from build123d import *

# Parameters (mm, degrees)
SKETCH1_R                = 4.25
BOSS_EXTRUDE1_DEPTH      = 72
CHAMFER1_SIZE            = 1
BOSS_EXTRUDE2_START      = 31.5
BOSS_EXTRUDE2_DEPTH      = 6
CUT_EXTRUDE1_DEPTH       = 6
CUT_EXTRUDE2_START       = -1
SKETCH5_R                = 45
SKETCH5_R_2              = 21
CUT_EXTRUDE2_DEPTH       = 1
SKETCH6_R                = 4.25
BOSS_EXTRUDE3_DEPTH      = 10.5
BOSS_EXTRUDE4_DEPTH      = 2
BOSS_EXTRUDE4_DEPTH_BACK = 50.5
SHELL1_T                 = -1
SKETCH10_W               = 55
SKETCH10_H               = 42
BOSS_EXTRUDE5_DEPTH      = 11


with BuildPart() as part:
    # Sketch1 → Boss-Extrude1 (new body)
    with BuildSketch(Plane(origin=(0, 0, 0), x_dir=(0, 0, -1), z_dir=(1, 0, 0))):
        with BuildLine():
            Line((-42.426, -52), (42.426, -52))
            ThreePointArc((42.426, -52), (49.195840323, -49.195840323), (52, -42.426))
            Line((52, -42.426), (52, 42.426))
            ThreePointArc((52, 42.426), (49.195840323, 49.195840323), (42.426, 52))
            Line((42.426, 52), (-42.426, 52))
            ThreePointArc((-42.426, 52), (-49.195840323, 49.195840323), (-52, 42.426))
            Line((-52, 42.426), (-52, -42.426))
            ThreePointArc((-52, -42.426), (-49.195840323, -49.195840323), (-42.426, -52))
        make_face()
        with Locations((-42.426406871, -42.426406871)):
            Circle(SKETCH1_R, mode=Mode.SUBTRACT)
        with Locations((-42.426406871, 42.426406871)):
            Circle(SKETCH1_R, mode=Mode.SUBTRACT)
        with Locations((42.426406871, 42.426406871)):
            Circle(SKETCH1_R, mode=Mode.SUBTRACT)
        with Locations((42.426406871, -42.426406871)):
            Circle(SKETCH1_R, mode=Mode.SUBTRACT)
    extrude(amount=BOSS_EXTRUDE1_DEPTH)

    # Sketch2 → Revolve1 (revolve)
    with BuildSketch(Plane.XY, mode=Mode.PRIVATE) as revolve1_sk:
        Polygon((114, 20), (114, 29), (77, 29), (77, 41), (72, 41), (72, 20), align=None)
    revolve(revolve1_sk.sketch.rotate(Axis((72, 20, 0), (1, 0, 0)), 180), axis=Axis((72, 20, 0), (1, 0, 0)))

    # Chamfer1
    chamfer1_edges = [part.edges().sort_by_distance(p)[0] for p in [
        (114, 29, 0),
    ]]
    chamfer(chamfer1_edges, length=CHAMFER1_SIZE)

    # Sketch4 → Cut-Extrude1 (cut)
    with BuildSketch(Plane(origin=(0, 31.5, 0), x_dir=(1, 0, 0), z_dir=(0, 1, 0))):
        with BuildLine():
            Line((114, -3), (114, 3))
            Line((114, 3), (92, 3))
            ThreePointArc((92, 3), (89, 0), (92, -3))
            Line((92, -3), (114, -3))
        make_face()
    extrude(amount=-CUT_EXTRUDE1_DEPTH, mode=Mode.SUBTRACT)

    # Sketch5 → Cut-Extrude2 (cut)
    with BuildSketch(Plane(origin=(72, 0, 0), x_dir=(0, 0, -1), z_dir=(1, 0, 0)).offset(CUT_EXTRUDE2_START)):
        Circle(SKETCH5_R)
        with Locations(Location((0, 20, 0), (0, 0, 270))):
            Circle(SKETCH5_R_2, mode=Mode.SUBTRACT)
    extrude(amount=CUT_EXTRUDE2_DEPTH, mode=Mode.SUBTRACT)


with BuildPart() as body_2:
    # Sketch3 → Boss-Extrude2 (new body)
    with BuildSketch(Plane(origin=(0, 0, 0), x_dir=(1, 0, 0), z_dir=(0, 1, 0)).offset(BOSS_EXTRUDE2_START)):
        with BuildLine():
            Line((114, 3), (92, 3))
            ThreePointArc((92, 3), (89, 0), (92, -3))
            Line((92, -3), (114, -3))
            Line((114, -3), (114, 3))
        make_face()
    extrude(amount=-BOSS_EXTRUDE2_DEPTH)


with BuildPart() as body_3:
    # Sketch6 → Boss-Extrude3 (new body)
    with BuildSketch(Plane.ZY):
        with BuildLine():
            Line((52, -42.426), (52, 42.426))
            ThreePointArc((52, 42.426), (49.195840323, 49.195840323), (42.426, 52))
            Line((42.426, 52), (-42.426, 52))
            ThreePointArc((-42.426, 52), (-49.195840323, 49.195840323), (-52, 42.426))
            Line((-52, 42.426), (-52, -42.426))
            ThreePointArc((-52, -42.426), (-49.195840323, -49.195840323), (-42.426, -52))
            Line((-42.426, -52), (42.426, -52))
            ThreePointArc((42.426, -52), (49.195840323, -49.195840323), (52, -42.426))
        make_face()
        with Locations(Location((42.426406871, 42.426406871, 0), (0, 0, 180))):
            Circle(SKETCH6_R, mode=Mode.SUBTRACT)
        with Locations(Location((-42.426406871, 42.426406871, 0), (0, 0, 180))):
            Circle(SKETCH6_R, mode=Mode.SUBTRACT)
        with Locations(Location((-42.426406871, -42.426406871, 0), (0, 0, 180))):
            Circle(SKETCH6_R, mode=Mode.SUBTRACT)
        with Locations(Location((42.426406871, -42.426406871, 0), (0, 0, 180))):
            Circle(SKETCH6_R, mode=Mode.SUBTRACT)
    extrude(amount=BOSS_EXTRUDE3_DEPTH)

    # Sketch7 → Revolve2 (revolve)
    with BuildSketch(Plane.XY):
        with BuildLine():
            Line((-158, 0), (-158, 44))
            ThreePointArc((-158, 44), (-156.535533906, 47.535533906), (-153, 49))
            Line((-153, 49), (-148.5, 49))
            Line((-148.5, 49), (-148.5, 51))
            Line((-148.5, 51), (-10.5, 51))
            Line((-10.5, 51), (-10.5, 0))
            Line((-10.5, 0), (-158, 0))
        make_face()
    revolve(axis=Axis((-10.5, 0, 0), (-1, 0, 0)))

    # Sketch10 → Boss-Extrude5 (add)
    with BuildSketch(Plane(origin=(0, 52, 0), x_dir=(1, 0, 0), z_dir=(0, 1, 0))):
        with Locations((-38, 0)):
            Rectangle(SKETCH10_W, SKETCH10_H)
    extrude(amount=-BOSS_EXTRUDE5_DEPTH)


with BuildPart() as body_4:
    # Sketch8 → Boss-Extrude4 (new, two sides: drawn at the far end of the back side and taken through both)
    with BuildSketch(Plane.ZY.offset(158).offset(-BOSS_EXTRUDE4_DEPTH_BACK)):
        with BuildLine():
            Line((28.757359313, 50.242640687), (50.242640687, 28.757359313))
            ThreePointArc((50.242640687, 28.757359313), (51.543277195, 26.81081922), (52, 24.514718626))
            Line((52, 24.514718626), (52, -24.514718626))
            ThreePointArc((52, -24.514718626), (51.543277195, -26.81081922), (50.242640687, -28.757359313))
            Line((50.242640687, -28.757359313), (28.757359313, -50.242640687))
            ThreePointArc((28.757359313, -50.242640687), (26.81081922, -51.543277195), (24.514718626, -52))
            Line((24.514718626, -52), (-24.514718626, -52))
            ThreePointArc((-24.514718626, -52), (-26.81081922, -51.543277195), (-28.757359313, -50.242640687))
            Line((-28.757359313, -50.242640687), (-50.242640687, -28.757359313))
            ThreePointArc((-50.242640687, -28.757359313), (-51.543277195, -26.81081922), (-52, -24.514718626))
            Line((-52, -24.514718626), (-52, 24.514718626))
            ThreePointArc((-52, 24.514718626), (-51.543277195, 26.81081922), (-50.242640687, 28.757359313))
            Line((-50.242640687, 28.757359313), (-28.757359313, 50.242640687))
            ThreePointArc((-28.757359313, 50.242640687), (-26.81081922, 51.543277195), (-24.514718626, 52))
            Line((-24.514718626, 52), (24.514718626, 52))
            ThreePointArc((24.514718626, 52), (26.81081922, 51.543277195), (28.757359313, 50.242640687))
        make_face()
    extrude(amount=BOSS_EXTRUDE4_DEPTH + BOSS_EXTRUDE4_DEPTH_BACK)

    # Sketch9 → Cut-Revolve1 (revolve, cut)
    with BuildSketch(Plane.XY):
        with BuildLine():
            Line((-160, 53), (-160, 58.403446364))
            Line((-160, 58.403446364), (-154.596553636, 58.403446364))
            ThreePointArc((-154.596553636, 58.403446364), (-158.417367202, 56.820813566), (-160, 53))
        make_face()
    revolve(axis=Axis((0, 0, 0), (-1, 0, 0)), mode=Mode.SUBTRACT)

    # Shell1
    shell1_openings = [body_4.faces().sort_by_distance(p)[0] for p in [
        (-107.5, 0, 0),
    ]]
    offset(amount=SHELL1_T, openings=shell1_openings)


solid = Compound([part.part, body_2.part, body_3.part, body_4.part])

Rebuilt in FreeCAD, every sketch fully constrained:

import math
import FreeCAD as App
import Part
import Sketcher
from FreeCAD import Vector


def edges_at(feature, points):
    """Names of the edges that pass closest to the given points."""
    edges = feature.Shape.Edges
    near = lambda p: min(range(len(edges)), key=lambda i: edges[i].distToShape(Part.Vertex(*p))[0])
    return sorted({f"Edge{near(p) + 1}" for p in points})


def faces_at(feature, points):
    """Names of the faces that lie closest to the given points."""
    faces = feature.Shape.Faces
    near = lambda p: min(range(len(faces)), key=lambda i: faces[i].distToShape(Part.Vertex(*p))[0])
    return sorted({f"Face{near(p) + 1}" for p in points})

doc = App.newDocument("Part")
body = doc.addObject("PartDesign::Body", "Body")

sketch1 = doc.addObject("Sketcher::SketchObject", "Sketch")
body.addObject(sketch1)
sketch1.AttachmentSupport = (doc.YZ_Plane, [""])
sketch1.MapMode = "FlatFace"
sketch1.addGeometry([
    Part.LineSegment(Vector(-52, 42.426, 0), Vector(-52, -42.426, 0)),
    Part.ArcOfCircle(Part.Circle(Vector(-42.426, -42.426, 0), Vector(0, 0, 1), 9.574), math.radians(180), math.radians(270)),
    Part.LineSegment(Vector(-42.426, -52, 0), Vector(42.426, -52, 0)),
    Part.ArcOfCircle(Part.Circle(Vector(42.426, -42.426, 0), Vector(0, 0, 1), 9.574), math.radians(-90), math.radians(0)),
    Part.LineSegment(Vector(52, -42.426, 0), Vector(52, 42.426, 0)),
    Part.ArcOfCircle(Part.Circle(Vector(42.426, 42.426, 0), Vector(0, 0, 1), 9.574), math.radians(0), math.radians(90)),
    Part.LineSegment(Vector(42.426, 52, 0), Vector(-42.426, 52, 0)),
    Part.ArcOfCircle(Part.Circle(Vector(-42.426, 42.426, 0), Vector(0, 0, 1), 9.574), math.radians(90), math.radians(180)),
    Part.Circle(Vector(-42.426407, 42.426407, 0), Vector(0, 0, 1), 4.25),
    Part.Circle(Vector(-42.426407, -42.426407, 0), Vector(0, 0, 1), 4.25),
    Part.Circle(Vector(42.426407, 42.426407, 0), Vector(0, 0, 1), 4.25),
    Part.Circle(Vector(42.426407, -42.426407, 0), Vector(0, 0, 1), 4.25),
], False)
sketch1.addConstraint([
    Sketcher.Constraint("Tangent", 0, 2, 1, 1),
    Sketcher.Constraint("Tangent", 1, 2, 2, 1),
    Sketcher.Constraint("Tangent", 2, 2, 3, 1),
    Sketcher.Constraint("Tangent", 3, 2, 4, 1),
    Sketcher.Constraint("Tangent", 4, 2, 5, 1),
    Sketcher.Constraint("Tangent", 5, 2, 6, 1),
    Sketcher.Constraint("Tangent", 6, 2, 7, 1),
    Sketcher.Constraint("Tangent", 7, 2, 0, 1),
    Sketcher.Constraint("Vertical", 0),
    Sketcher.Constraint("Horizontal", 2),
    Sketcher.Constraint("Vertical", 4),
    Sketcher.Constraint("Horizontal", 6),
    Sketcher.Constraint("Equal", 1, 3),
    Sketcher.Constraint("Equal", 3, 5),
    Sketcher.Constraint("Equal", 5, 7),
    Sketcher.Constraint("Equal", 8, 9),
    Sketcher.Constraint("Equal", 9, 10),
    Sketcher.Constraint("Equal", 10, 11),
    Sketcher.Constraint("Symmetric", 1, 3, 5, 3, -1, 1),
    Sketcher.Constraint("Symmetric", 9, 3, 10, 3, -1, 1),
    Sketcher.Constraint("Symmetric", 8, 3, 11, 3, -1, 1),
    Sketcher.Constraint("Symmetric", 8, 3, 10, 3, -2),
    Sketcher.Constraint("Equal", 6, 0),
    Sketcher.Constraint("Diameter", 8, 8.5),
    Sketcher.Constraint("DistanceX", 0, 2, -1, 1, 52.0),
    Sketcher.Constraint("Radius", 1, 9.574),
    Sketcher.Constraint("DistanceX", 8, 3, -1, 1, 42.426407),
    Sketcher.Constraint("DistanceY", -1, 1, 8, 3, 42.426407),
])
pad1 = doc.addObject("PartDesign::Pad", "Pad")
body.addObject(pad1)
pad1.Profile = sketch1
pad1.Length = 72

sketch2 = doc.addObject("Sketcher::SketchObject", "Sketch001")
body.addObject(sketch2)
sketch2.AttachmentSupport = (doc.XY_Plane, [""])
sketch2.MapMode = "FlatFace"
sketch2.addGeometry([
    Part.LineSegment(Vector(114, 20, 0), Vector(114, 29, 0)),
    Part.LineSegment(Vector(114, 29, 0), Vector(77, 29, 0)),
    Part.LineSegment(Vector(77, 29, 0), Vector(77, 41, 0)),
    Part.LineSegment(Vector(77, 41, 0), Vector(72, 41, 0)),
    Part.LineSegment(Vector(72, 41, 0), Vector(72, 20, 0)),
    Part.LineSegment(Vector(72, 20, 0), Vector(114, 20, 0)),
], False)
sketch2.addGeometry(Part.LineSegment(Vector(72, 20, 0), Vector(114, 20, 0)), True)
sketch2.addConstraint([
    Sketcher.Constraint("Coincident", 0, 2, 1, 1),
    Sketcher.Constraint("Coincident", 1, 2, 2, 1),
    Sketcher.Constraint("Coincident", 2, 2, 3, 1),
    Sketcher.Constraint("Coincident", 3, 2, 4, 1),
    Sketcher.Constraint("Coincident", 4, 2, 5, 1),
    Sketcher.Constraint("Coincident", 5, 2, 0, 1),
    Sketcher.Constraint("Vertical", 0),
    Sketcher.Constraint("Horizontal", 1),
    Sketcher.Constraint("Vertical", 2),
    Sketcher.Constraint("Horizontal", 3),
    Sketcher.Constraint("Vertical", 4),
    Sketcher.Constraint("Horizontal", 5),
    Sketcher.Constraint("Horizontal", 6),
    Sketcher.Constraint("Coincident", 6, 1, 4, 2),
    Sketcher.Constraint("Vertical", 0, 2, 6, 2),
    Sketcher.Constraint("DistanceX", 1, 2, 1, 1, 37.0),
    Sketcher.Constraint("DistanceX", 3, 2, 3, 1, 5.0),
    Sketcher.Constraint("DistanceY", 0, 1, 0, 2, 9.0),
    Sketcher.Constraint("DistanceY", 2, 1, 2, 2, 12.0),
    Sketcher.Constraint("DistanceX", -1, 1, 0, 2, 114.0),
    Sketcher.Constraint("DistanceY", -1, 1, 0, 2, 29.0),
])
revolution = doc.addObject("PartDesign::Revolution", "Revolution")
body.addObject(revolution)
revolution.Profile = sketch2
revolution.ReferenceAxis = (sketch2, ["Axis0"])
revolution.Angle = 360
doc.recompute()

chamfer = doc.addObject("PartDesign::Chamfer", "Chamfer")
body.addObject(chamfer)
chamfer.Base = (revolution, edges_at(revolution, [(114, 29, 0)]))
chamfer.Size = 1

sketch3 = doc.addObject("Sketcher::SketchObject", "Sketch002")
body.addObject(sketch3)
sketch3.AttachmentSupport = (doc.XZ_Plane, [""])
sketch3.MapMode = "FlatFace"
sketch3.AttachmentOffset = App.Placement(Vector(0, 0, -31.5), App.Rotation())
sketch3.addGeometry([
    Part.LineSegment(Vector(114, 3, 0), Vector(114, -3, 0)),
    Part.LineSegment(Vector(114, -3, 0), Vector(92, -3, 0)),
    Part.ArcOfCircle(Part.Circle(Vector(92, 0, 0), Vector(0, 0, 1), 3), math.radians(90), math.radians(270)),
    Part.LineSegment(Vector(92, 3, 0), Vector(114, 3, 0)),
], False)
sketch3.addConstraint([
    Sketcher.Constraint("Coincident", 0, 2, 1, 1),
    Sketcher.Constraint("Tangent", 1, 2, 2, 2),
    Sketcher.Constraint("Tangent", 2, 1, 3, 1),
    Sketcher.Constraint("Coincident", 3, 2, 0, 1),
    Sketcher.Constraint("Vertical", 0),
    Sketcher.Constraint("Horizontal", 1),
    Sketcher.Constraint("Horizontal", 3),
    Sketcher.Constraint("PointOnObject", 2, 3, -1),
    Sketcher.Constraint("Radius", 2, 3.0),
    Sketcher.Constraint("DistanceX", 1, 2, 1, 1, 22.0),
    Sketcher.Constraint("DistanceX", -1, 1, 2, 3, 92.0),
])
pocket1 = doc.addObject("PartDesign::Pocket", "Pocket")
body.addObject(pocket1)
pocket1.Profile = sketch3
pocket1.Length = 6
pocket1.Reversed = True

sketch4 = doc.addObject("Sketcher::SketchObject", "Sketch003")
body.addObject(sketch4)
sketch4.AttachmentSupport = (doc.YZ_Plane, [""])
sketch4.MapMode = "FlatFace"
sketch4.AttachmentOffset = App.Placement(Vector(0, 0, 71), App.Rotation())
sketch4.addGeometry([
    Part.Circle(Vector(0, 0, 0), Vector(0, 0, 1), 45),
    Part.Circle(Vector(20, 0, 0), Vector(0, 0, 1), 21),
], False)
sketch4.addConstraint([
    Sketcher.Constraint("Coincident", 0, 3, -1, 1),
    Sketcher.Constraint("PointOnObject", 1, 3, -1),
    Sketcher.Constraint("Diameter", 0, 90.0),
    Sketcher.Constraint("Diameter", 1, 42.0),
    Sketcher.Constraint("DistanceX", -1, 1, 1, 3, 20.0),
])
pocket2 = doc.addObject("PartDesign::Pocket", "Pocket001")
body.addObject(pocket2)
pocket2.Profile = sketch4
pocket2.Length = 1
pocket2.Reversed = True
body2 = doc.addObject("PartDesign::Body", "Body001")

sketch5 = doc.addObject("Sketcher::SketchObject", "Sketch004")
body2.addObject(sketch5)
sketch5.AttachmentSupport = (doc.getObject("XZ_Plane001"), [""])
sketch5.MapMode = "FlatFace"
sketch5.AttachmentOffset = App.Placement(Vector(0, 0, -31.5), App.Rotation())
sketch5.addGeometry([
    Part.LineSegment(Vector(114, -3, 0), Vector(92, -3, 0)),
    Part.ArcOfCircle(Part.Circle(Vector(92, 0, 0), Vector(0, 0, 1), 3), math.radians(90), math.radians(270)),
    Part.LineSegment(Vector(92, 3, 0), Vector(114, 3, 0)),
    Part.LineSegment(Vector(114, 3, 0), Vector(114, -3, 0)),
], False)
sketch5.addConstraint([
    Sketcher.Constraint("Tangent", 0, 2, 1, 2),
    Sketcher.Constraint("Tangent", 1, 1, 2, 1),
    Sketcher.Constraint("Coincident", 2, 2, 3, 1),
    Sketcher.Constraint("Coincident", 3, 2, 0, 1),
    Sketcher.Constraint("Horizontal", 0),
    Sketcher.Constraint("Horizontal", 2),
    Sketcher.Constraint("Vertical", 3),
    Sketcher.Constraint("PointOnObject", 1, 3, -1),
    Sketcher.Constraint("Radius", 1, 3.0),
    Sketcher.Constraint("DistanceX", 0, 2, 0, 1, 22.0),
    Sketcher.Constraint("DistanceX", -1, 1, 1, 3, 92.0),
])
pad2 = doc.addObject("PartDesign::Pad", "Pad001")
body2.addObject(pad2)
pad2.Profile = sketch5
pad2.Length = 6
body3 = doc.addObject("PartDesign::Body", "Body002")

sketch6 = doc.addObject("Sketcher::SketchObject", "Sketch005")
body3.addObject(sketch6)
sketch6.AttachmentSupport = (doc.getObject("YZ_Plane002"), [""])
sketch6.MapMode = "FlatFace"
sketch6.addGeometry([
    Part.LineSegment(Vector(-42.426, 52, 0), Vector(42.426, 52, 0)),
    Part.ArcOfCircle(Part.Circle(Vector(42.426, 42.426, 0), Vector(0, 0, 1), 9.574), math.radians(0), math.radians(90)),
    Part.LineSegment(Vector(52, 42.426, 0), Vector(52, -42.426, 0)),
    Part.ArcOfCircle(Part.Circle(Vector(42.426, -42.426, 0), Vector(0, 0, 1), 9.574), math.radians(-90), math.radians(0)),
    Part.LineSegment(Vector(42.426, -52, 0), Vector(-42.426, -52, 0)),
    Part.ArcOfCircle(Part.Circle(Vector(-42.426, -42.426, 0), Vector(0, 0, 1), 9.574), math.radians(180), math.radians(270)),
    Part.LineSegment(Vector(-52, -42.426, 0), Vector(-52, 42.426, 0)),
    Part.ArcOfCircle(Part.Circle(Vector(-42.426, 42.426, 0), Vector(0, 0, 1), 9.574), math.radians(90), math.radians(180)),
    Part.Circle(Vector(-42.426407, -42.426407, 0), Vector(0, 0, 1), 4.25),
    Part.Circle(Vector(-42.426407, 42.426407, 0), Vector(0, 0, 1), 4.25),
    Part.Circle(Vector(42.426407, -42.426407, 0), Vector(0, 0, 1), 4.25),
    Part.Circle(Vector(42.426407, 42.426407, 0), Vector(0, 0, 1), 4.25),
], False)
sketch6.addConstraint([
    Sketcher.Constraint("Tangent", 0, 2, 1, 2),
    Sketcher.Constraint("Tangent", 1, 1, 2, 1),
    Sketcher.Constraint("Tangent", 2, 2, 3, 2),
    Sketcher.Constraint("Tangent", 3, 1, 4, 1),
    Sketcher.Constraint("Tangent", 4, 2, 5, 2),
    Sketcher.Constraint("Tangent", 5, 1, 6, 1),
    Sketcher.Constraint("Tangent", 6, 2, 7, 2),
    Sketcher.Constraint("Tangent", 7, 1, 0, 1),
    Sketcher.Constraint("Horizontal", 0),
    Sketcher.Constraint("Vertical", 2),
    Sketcher.Constraint("Horizontal", 4),
    Sketcher.Constraint("Vertical", 6),
    Sketcher.Constraint("Equal", 1, 3),
    Sketcher.Constraint("Equal", 3, 5),
    Sketcher.Constraint("Equal", 5, 7),
    Sketcher.Constraint("Equal", 8, 9),
    Sketcher.Constraint("Equal", 9, 10),
    Sketcher.Constraint("Equal", 10, 11),
    Sketcher.Constraint("Symmetric", 1, 3, 5, 3, -1, 1),
    Sketcher.Constraint("Symmetric", 9, 3, 10, 3, -1, 1),
    Sketcher.Constraint("Symmetric", 8, 3, 11, 3, -1, 1),
    Sketcher.Constraint("Symmetric", 8, 3, 10, 3, -2),
    Sketcher.Constraint("Equal", 4, 2),
    Sketcher.Constraint("Diameter", 8, 8.5),
    Sketcher.Constraint("DistanceY", -1, 1, 0, 2, 52.0),
    Sketcher.Constraint("Radius", 1, 9.574),
    Sketcher.Constraint("DistanceX", 8, 3, -1, 1, 42.426407),
    Sketcher.Constraint("DistanceY", 8, 3, -1, 1, 42.426407),
])
pad3 = doc.addObject("PartDesign::Pad", "Pad002")
body3.addObject(pad3)
pad3.Profile = sketch6
pad3.Length = 10.5
pad3.Reversed = True

sketch7 = doc.addObject("Sketcher::SketchObject", "Sketch006")
body3.addObject(sketch7)
sketch7.AttachmentSupport = (doc.getObject("XY_Plane002"), [""])
sketch7.MapMode = "FlatFace"
sketch7.addGeometry([
    Part.LineSegment(Vector(-158, 44, 0), Vector(-158, 0, 0)),
    Part.LineSegment(Vector(-158, 0, 0), Vector(-10.5, 0, 0)),
    Part.LineSegment(Vector(-10.5, 0, 0), Vector(-10.5, 51, 0)),
    Part.LineSegment(Vector(-10.5, 51, 0), Vector(-148.5, 51, 0)),
    Part.LineSegment(Vector(-148.5, 51, 0), Vector(-148.5, 49, 0)),
    Part.LineSegment(Vector(-148.5, 49, 0), Vector(-153, 49, 0)),
    Part.ArcOfCircle(Part.Circle(Vector(-153, 44, 0), Vector(0, 0, 1), 5), math.radians(90), math.radians(180)),
], False)
sketch7.addConstraint([
    Sketcher.Constraint("Coincident", 0, 2, 1, 1),
    Sketcher.Constraint("Coincident", 1, 2, 2, 1),
    Sketcher.Constraint("Coincident", 2, 2, 3, 1),
    Sketcher.Constraint("Coincident", 3, 2, 4, 1),
    Sketcher.Constraint("Coincident", 4, 2, 5, 1),
    Sketcher.Constraint("Tangent", 5, 2, 6, 1),
    Sketcher.Constraint("Tangent", 6, 2, 0, 1),
    Sketcher.Constraint("Vertical", 0),
    Sketcher.Constraint("Horizontal", 1),
    Sketcher.Constraint("Vertical", 2),
    Sketcher.Constraint("Horizontal", 3),
    Sketcher.Constraint("Vertical", 4),
    Sketcher.Constraint("Horizontal", 5),
    Sketcher.Constraint("PointOnObject", 0, 2, -1),
    Sketcher.Constraint("Radius", 6, 5.0),
    Sketcher.Constraint("DistanceX", 3, 2, 3, 1, 138.0),
    Sketcher.Constraint("DistanceY", 0, 2, 0, 1, 44.0),
    Sketcher.Constraint("DistanceY", 2, 1, 2, 2, 51.0),
    Sketcher.Constraint("DistanceX", 1, 1, 1, 2, 147.5),
    Sketcher.Constraint("DistanceX", 6, 3, -1, 1, 153.0),
])
revolution2 = doc.addObject("PartDesign::Revolution", "Revolution001")
body3.addObject(revolution2)
revolution2.Profile = sketch7
revolution2.ReferenceAxis = (sketch7, ["H_Axis"])
revolution2.Angle = 360

sketch8 = doc.addObject("Sketcher::SketchObject", "Sketch007")
body3.addObject(sketch8)
sketch8.AttachmentSupport = (doc.getObject("XZ_Plane002"), [""])
sketch8.MapMode = "FlatFace"
sketch8.AttachmentOffset = App.Placement(Vector(0, 0, -52), App.Rotation())
sketch8.addGeometry([
    Part.LineSegment(Vector(-65.5, -21, 0), Vector(-65.5, 21, 0)),
    Part.LineSegment(Vector(-65.5, 21, 0), Vector(-10.5, 21, 0)),
    Part.LineSegment(Vector(-10.5, 21, 0), Vector(-10.5, -21, 0)),
    Part.LineSegment(Vector(-10.5, -21, 0), Vector(-65.5, -21, 0)),
], False)
sketch8.addConstraint([
    Sketcher.Constraint("Coincident", 0, 2, 1, 1),
    Sketcher.Constraint("Coincident", 1, 2, 2, 1),
    Sketcher.Constraint("Coincident", 2, 2, 3, 1),
    Sketcher.Constraint("Coincident", 3, 2, 0, 1),
    Sketcher.Constraint("Vertical", 0),
    Sketcher.Constraint("Horizontal", 1),
    Sketcher.Constraint("Vertical", 2),
    Sketcher.Constraint("Horizontal", 3),
    Sketcher.Constraint("DistanceX", 1, 1, 1, 2, 55.0),
    Sketcher.Constraint("DistanceY", 0, 1, 0, 2, 42.0),
    Sketcher.Constraint("DistanceY", -1, 1, 0, 2, 21.0),
    Sketcher.Constraint("DistanceX", 0, 2, -1, 1, 65.5),
])
pad4 = doc.addObject("PartDesign::Pad", "Pad003")
body3.addObject(pad4)
pad4.Profile = sketch8
pad4.Length = 11
body4 = doc.addObject("PartDesign::Body", "Body003")

sketch9 = doc.addObject("Sketcher::SketchObject", "Sketch008")
body4.addObject(sketch9)
sketch9.AttachmentSupport = (doc.getObject("YZ_Plane003"), [""])
sketch9.MapMode = "FlatFace"
sketch9.AttachmentOffset = App.Placement(Vector(0, 0, -158), App.Rotation())
sketch9.addGeometry([
    Part.LineSegment(Vector(28.757359, 50.242641, 0), Vector(50.242641, 28.757359, 0)),
    Part.ArcOfCircle(Part.Circle(Vector(46, 24.514719, 0), Vector(0, 0, 1), 6), math.radians(0), math.radians(45)),
    Part.LineSegment(Vector(52, 24.514719, 0), Vector(52, -24.514719, 0)),
    Part.ArcOfCircle(Part.Circle(Vector(46, -24.514719, 0), Vector(0, 0, 1), 6), math.radians(-45), math.radians(0)),
    Part.LineSegment(Vector(50.242641, -28.757359, 0), Vector(28.757359, -50.242641, 0)),
    Part.ArcOfCircle(Part.Circle(Vector(24.514719, -46, 0), Vector(0, 0, 1), 6), math.radians(-90), math.radians(-45)),
    Part.LineSegment(Vector(24.514719, -52, 0), Vector(-24.514719, -52, 0)),
    Part.ArcOfCircle(Part.Circle(Vector(-24.514719, -46, 0), Vector(0, 0, 1), 6), math.radians(-135), math.radians(-90)),
    Part.LineSegment(Vector(-28.757359, -50.242641, 0), Vector(-50.242641, -28.757359, 0)),
    Part.ArcOfCircle(Part.Circle(Vector(-46, -24.514719, 0), Vector(0, 0, 1), 6), math.radians(180), math.radians(225)),
    Part.LineSegment(Vector(-52, -24.514719, 0), Vector(-52, 24.514719, 0)),
    Part.ArcOfCircle(Part.Circle(Vector(-46, 24.514719, 0), Vector(0, 0, 1), 6), math.radians(135), math.radians(180)),
    Part.LineSegment(Vector(-50.242641, 28.757359, 0), Vector(-28.757359, 50.242641, 0)),
    Part.ArcOfCircle(Part.Circle(Vector(-24.514719, 46, 0), Vector(0, 0, 1), 6), math.radians(90), math.radians(135)),
    Part.LineSegment(Vector(-24.514719, 52, 0), Vector(24.514719, 52, 0)),
    Part.ArcOfCircle(Part.Circle(Vector(24.514719, 46, 0), Vector(0, 0, 1), 6), math.radians(45), math.radians(90)),
], False)
sketch9.addConstraint([
    Sketcher.Constraint("Tangent", 0, 2, 1, 2),
    Sketcher.Constraint("Tangent", 1, 1, 2, 1),
    Sketcher.Constraint("Tangent", 2, 2, 3, 2),
    Sketcher.Constraint("Tangent", 3, 1, 4, 1),
    Sketcher.Constraint("Tangent", 4, 2, 5, 2),
    Sketcher.Constraint("Tangent", 5, 1, 6, 1),
    Sketcher.Constraint("Tangent", 6, 2, 7, 2),
    Sketcher.Constraint("Tangent", 7, 1, 8, 1),
    Sketcher.Constraint("Tangent", 8, 2, 9, 2),
    Sketcher.Constraint("Tangent", 9, 1, 10, 1),
    Sketcher.Constraint("Tangent", 10, 2, 11, 2),
    Sketcher.Constraint("Tangent", 11, 1, 12, 1),
    Sketcher.Constraint("Tangent", 12, 2, 13, 2),
    Sketcher.Constraint("Tangent", 13, 1, 14, 1),
    Sketcher.Constraint("Tangent", 14, 2, 15, 2),
    Sketcher.Constraint("Tangent", 15, 1, 0, 1),
    Sketcher.Constraint("Vertical", 2),
    Sketcher.Constraint("Horizontal", 6),
    Sketcher.Constraint("Vertical", 10),
    Sketcher.Constraint("Horizontal", 14),
    Sketcher.Constraint("Equal", 1, 3),
    Sketcher.Constraint("Equal", 3, 5),
    Sketcher.Constraint("Equal", 5, 7),
    Sketcher.Constraint("Equal", 7, 9),
    Sketcher.Constraint("Equal", 9, 11),
    Sketcher.Constraint("Equal", 11, 13),
    Sketcher.Constraint("Equal", 13, 15),
    Sketcher.Constraint("Symmetric", 1, 3, 9, 3, -1, 1),
    Sketcher.Constraint("Symmetric", 5, 3, 13, 3, -1, 1),
    Sketcher.Constraint("Symmetric", 4, 2, 7, 1, -2),
    Sketcher.Constraint("Symmetric", 0, 2, 11, 1, -2),
    Sketcher.Constraint("Perpendicular", 0, 4),
    Sketcher.Constraint("Equal", 14, 2),
    Sketcher.Constraint("Radius", 1, 6.0),
    Sketcher.Constraint("DistanceX", -1, 1, 1, 3, 46.0),
    Sketcher.Constraint("DistanceX", 6, 2, 6, 1, 49.029437),
])
pad5 = doc.addObject("PartDesign::Pad", "Pad004")
body4.addObject(pad5)
pad5.Profile = sketch9
pad5.Type = "TwoLengths"
pad5.Length = 2
pad5.Length2 = 50.5
pad5.Reversed = True

sketch10 = doc.addObject("Sketcher::SketchObject", "Sketch009")
body4.addObject(sketch10)
sketch10.AttachmentSupport = (doc.getObject("XY_Plane003"), [""])
sketch10.MapMode = "FlatFace"
sketch10.addGeometry([
    Part.LineSegment(Vector(-160, 58.403446, 0), Vector(-160, 53, 0)),
    Part.ArcOfCircle(Part.Circle(Vector(-154.596554, 53, 0), Vector(0, 0, 1), 5.403446), math.radians(90), math.radians(180)),
    Part.LineSegment(Vector(-154.596554, 58.403446, 0), Vector(-160, 58.403446, 0)),
], False)
sketch10.addConstraint([
    Sketcher.Constraint("Tangent", 0, 2, 1, 2),
    Sketcher.Constraint("Tangent", 1, 1, 2, 1),
    Sketcher.Constraint("Coincident", 2, 2, 0, 1),
    Sketcher.Constraint("Vertical", 0),
    Sketcher.Constraint("Horizontal", 2),
    Sketcher.Constraint("DistanceY", -1, 1, 1, 3, 53.0),
    Sketcher.Constraint("DistanceX", 0, 2, -1, 1, 160.0),
    Sketcher.Constraint("Radius", 1, 5.403446),
])
groove = doc.addObject("PartDesign::Groove", "Groove")
body4.addObject(groove)
groove.Profile = sketch10
groove.ReferenceAxis = (sketch10, ["H_Axis"])
groove.Angle = 360
doc.recompute()

thickness = doc.addObject("PartDesign::Thickness", "Thickness")
body4.addObject(thickness)
thickness.Base = (groove, faces_at(groove, [(-107.5, 0, 0)]))
thickness.Value = 1
thickness.Reversed = True
thickness.Join = "Arc"

doc.recompute()
